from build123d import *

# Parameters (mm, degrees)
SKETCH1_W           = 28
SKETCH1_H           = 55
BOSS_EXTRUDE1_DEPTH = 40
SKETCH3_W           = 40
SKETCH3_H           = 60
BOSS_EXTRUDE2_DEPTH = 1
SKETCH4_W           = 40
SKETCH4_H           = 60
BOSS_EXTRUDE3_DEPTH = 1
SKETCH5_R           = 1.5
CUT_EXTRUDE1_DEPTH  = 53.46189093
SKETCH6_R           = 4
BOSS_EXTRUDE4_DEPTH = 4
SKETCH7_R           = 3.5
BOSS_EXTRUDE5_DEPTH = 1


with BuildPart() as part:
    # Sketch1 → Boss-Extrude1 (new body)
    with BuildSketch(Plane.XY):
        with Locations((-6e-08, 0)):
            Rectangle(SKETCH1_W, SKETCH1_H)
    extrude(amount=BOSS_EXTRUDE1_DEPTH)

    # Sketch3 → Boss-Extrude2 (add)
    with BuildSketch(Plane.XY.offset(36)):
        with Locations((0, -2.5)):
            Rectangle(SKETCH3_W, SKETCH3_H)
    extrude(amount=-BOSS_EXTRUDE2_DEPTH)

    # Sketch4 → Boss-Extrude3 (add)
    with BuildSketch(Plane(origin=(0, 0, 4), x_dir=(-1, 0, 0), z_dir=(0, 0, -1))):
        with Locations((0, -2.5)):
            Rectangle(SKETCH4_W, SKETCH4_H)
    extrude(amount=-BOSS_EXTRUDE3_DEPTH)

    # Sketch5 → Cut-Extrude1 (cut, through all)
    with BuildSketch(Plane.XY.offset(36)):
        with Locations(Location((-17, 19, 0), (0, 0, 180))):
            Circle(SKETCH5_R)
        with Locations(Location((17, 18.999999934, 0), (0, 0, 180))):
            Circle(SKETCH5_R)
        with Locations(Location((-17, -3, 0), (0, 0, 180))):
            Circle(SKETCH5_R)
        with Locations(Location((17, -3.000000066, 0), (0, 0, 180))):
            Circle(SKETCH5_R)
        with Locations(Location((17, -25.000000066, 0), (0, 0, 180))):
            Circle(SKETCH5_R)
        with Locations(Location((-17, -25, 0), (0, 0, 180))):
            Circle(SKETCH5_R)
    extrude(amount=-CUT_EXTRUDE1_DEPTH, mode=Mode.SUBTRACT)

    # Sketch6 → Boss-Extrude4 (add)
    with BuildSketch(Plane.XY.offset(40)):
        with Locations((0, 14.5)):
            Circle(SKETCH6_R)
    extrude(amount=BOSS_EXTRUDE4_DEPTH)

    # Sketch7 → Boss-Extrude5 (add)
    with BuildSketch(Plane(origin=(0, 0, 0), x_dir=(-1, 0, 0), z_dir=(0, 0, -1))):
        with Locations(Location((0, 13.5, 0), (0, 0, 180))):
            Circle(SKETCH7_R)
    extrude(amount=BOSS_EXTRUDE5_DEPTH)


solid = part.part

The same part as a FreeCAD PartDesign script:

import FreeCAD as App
import Part
import Sketcher
from FreeCAD import Vector
Q = App.Units.Quantity

doc = App.newDocument("Part")
body = doc.addObject("PartDesign::Body", "Body")

# Sketch on XY plane
sketch1 = body.newObject("Sketcher::SketchObject", "Sketch")
sketch1.AttachmentSupport = (doc.getObject("XY_Plane"), [""])
sketch1.MapMode = "FlatFace"
sketch1.addGeometry(Part.LineSegment(Vector(-14, 27.5, 0), Vector(-14, -27.5, 0)), False)
sketch1.addGeometry(Part.LineSegment(Vector(-14, -27.5, 0), Vector(14, -27.5, 0)), False)
sketch1.addGeometry(Part.LineSegment(Vector(14, -27.5, 0), Vector(14, 27.5, 0)), False)
sketch1.addGeometry(Part.LineSegment(Vector(14, 27.5, 0), Vector(-14, 27.5, 0)), False)
sketch1.addConstraint(Sketcher.Constraint("Coincident", 0, 2, 1, 1))
sketch1.addConstraint(Sketcher.Constraint("Coincident", 1, 2, 2, 1))
sketch1.addConstraint(Sketcher.Constraint("Coincident", 2, 2, 3, 1))
sketch1.addConstraint(Sketcher.Constraint("Coincident", 3, 2, 0, 1))
sketch1.addConstraint(Sketcher.Constraint("Vertical", 0))
sketch1.addConstraint(Sketcher.Constraint("Horizontal", 1))
sketch1.addConstraint(Sketcher.Constraint("Vertical", 2))
sketch1.addConstraint(Sketcher.Constraint("Horizontal", 3))
sketch1.addConstraint(Sketcher.Constraint("Symmetric", 0, 2, 2, 2, -1, 1))
sketch1.addConstraint(Sketcher.Constraint("DistanceX", 1, 1, 1, 2, Q("28 mm")))
sketch1.addConstraint(Sketcher.Constraint("DistanceY", 0, 2, 0, 1, Q("55 mm")))
pad1 = body.newObject("PartDesign::Pad", "Pad")
pad1.Profile = sketch1
pad1.Length = 40

# Sketch on XY plane
sketch2 = body.newObject("Sketcher::SketchObject", "Sketch001")
sketch2.AttachmentSupport = (doc.getObject("XY_Plane"), [""])
sketch2.MapMode = "FlatFace"
sketch2.AttachmentOffset = App.Placement(Vector(0, 0, 36), App.Rotation())
sketch2.addGeometry(Part.LineSegment(Vector(-20, 27.5, 0), Vector(-20, -32.5, 0)), False)
sketch2.addGeometry(Part.LineSegment(Vector(-20, -32.5, 0), Vector(20, -32.5, 0)), False)
sketch2.addGeometry(Part.LineSegment(Vector(20, -32.5, 0), Vector(20, 27.5, 0)), False)
sketch2.addGeometry(Part.LineSegment(Vector(20, 27.5, 0), Vector(-20, 27.5, 0)), False)
sketch2.addConstraint(Sketcher.Constraint("Coincident", 0, 2, 1, 1))
sketch2.addConstraint(Sketcher.Constraint("Coincident", 1, 2, 2, 1))
sketch2.addConstraint(Sketcher.Constraint("Coincident", 2, 2, 3, 1))
sketch2.addConstraint(Sketcher.Constraint("Coincident", 3, 2, 0, 1))
sketch2.addConstraint(Sketcher.Constraint("Vertical", 0))
sketch2.addConstraint(Sketcher.Constraint("Horizontal", 1))
sketch2.addConstraint(Sketcher.Constraint("Vertical", 2))
sketch2.addConstraint(Sketcher.Constraint("Horizontal", 3))
sketch2.addConstraint(Sketcher.Constraint("DistanceX", 1, 1, 1, 2, Q("40 mm")))
sketch2.addConstraint(Sketcher.Constraint("DistanceY", 0, 2, 0, 1, Q("60 mm")))
sketch2.addConstraint(Sketcher.Constraint("DistanceX", 0, 2, -1, 1, Q("20 mm")))
sketch2.addConstraint(Sketcher.Constraint("DistanceY", 0, 2, -1, 1, Q("32.5 mm")))
pad2 = body.newObject("PartDesign::Pad", "Pad001")
pad2.Profile = sketch2
pad2.Length = 1
pad2.Reversed = True

# Sketch on XY plane
sketch3 = body.newObject("Sketcher::SketchObject", "Sketch002")
sketch3.AttachmentSupport = (doc.getObject("XY_Plane"), [""])
sketch3.MapMode = "FlatFace"
sketch3.AttachmentOffset = App.Placement(Vector(0, 0, 4), App.Rotation())
sketch3.addGeometry(Part.LineSegment(Vector(20, 27.5, 0), Vector(20, -32.5, 0)), False)
sketch3.addGeometry(Part.LineSegment(Vector(20, -32.5, 0), Vector(-20, -32.5, 0)), False)
sketch3.addGeometry(Part.LineSegment(Vector(-20, -32.5, 0), Vector(-20, 27.5, 0)), False)
sketch3.addGeometry(Part.LineSegment(Vector(-20, 27.5, 0), Vector(20, 27.5, 0)), False)
sketch3.addConstraint(Sketcher.Constraint("Coincident", 0, 2, 1, 1))
sketch3.addConstraint(Sketcher.Constraint("Coincident", 1, 2, 2, 1))
sketch3.addConstraint(Sketcher.Constraint("Coincident", 2, 2, 3, 1))
sketch3.addConstraint(Sketcher.Constraint("Coincident", 3, 2, 0, 1))
sketch3.addConstraint(Sketcher.Constraint("Vertical", 0))
sketch3.addConstraint(Sketcher.Constraint("Horizontal", 1))
sketch3.addConstraint(Sketcher.Constraint("Vertical", 2))
sketch3.addConstraint(Sketcher.Constraint("Horizontal", 3))
sketch3.addConstraint(Sketcher.Constraint("DistanceX", 1, 2, 1, 1, Q("40 mm")))
sketch3.addConstraint(Sketcher.Constraint("DistanceY", 0, 2, 0, 1, Q("60 mm")))
sketch3.addConstraint(Sketcher.Constraint("DistanceX", -1, 1, 0, 2, Q("20 mm")))
sketch3.addConstraint(Sketcher.Constraint("DistanceY", 0, 2, -1, 1, Q("32.5 mm")))
pad3 = body.newObject("PartDesign::Pad", "Pad002")
pad3.Profile = sketch3
pad3.Length = 1

# Sketch on XY plane
sketch4 = body.newObject("Sketcher::SketchObject", "Sketch003")
sketch4.AttachmentSupport = (doc.getObject("XY_Plane"), [""])
sketch4.MapMode = "FlatFace"
sketch4.AttachmentOffset = App.Placement(Vector(0, 0, 36), App.Rotation())
sketch4.addGeometry(Part.Circle(Vector(-17, 19, 0), Vector(0, 0, 1), 1.5), False)
sketch4.addGeometry(Part.Circle(Vector(17, 19, 0), Vector(0, 0, 1), 1.5), False)
sketch4.addGeometry(Part.Circle(Vector(-17, -3, 0), Vector(0, 0, 1), 1.5), False)
sketch4.addGeometry(Part.Circle(Vector(17, -3, 0), Vector(0, 0, 1), 1.5), False)
sketch4.addGeometry(Part.Circle(Vector(17, -25, 0), Vector(0, 0, 1), 1.5), False)
sketch4.addGeometry(Part.Circle(Vector(-17, -25, 0), Vector(0, 0, 1), 1.5), False)
sketch4.addConstraint(Sketcher.Constraint("Equal", 0, 1))
sketch4.addConstraint(Sketcher.Constraint("Equal", 1, 2))
sketch4.addConstraint(Sketcher.Constraint("Equal", 2, 3))
sketch4.addConstraint(Sketcher.Constraint("Equal", 3, 4))
sketch4.addConstraint(Sketcher.Constraint("Equal", 4, 5))
sketch4.addConstraint(Sketcher.Constraint("Symmetric", 0, 3, 1, 3, -2))
sketch4.addConstraint(Sketcher.Constraint("Symmetric", 2, 3, 3, 3, -2))
sketch4.addConstraint(Sketcher.Constraint("Symmetric", 4, 3, 5, 3, -2))
sketch4.addConstraint(Sketcher.Constraint("Vertical", 0, 3, 2, 3))
sketch4.addConstraint(Sketcher.Constraint("Vertical", 3, 3, 4, 3))
sketch4.addConstraint(Sketcher.Constraint("Diameter", 0, Q("3 mm")))
sketch4.addConstraint(Sketcher.Constraint("DistanceX", 0, 3, -1, 1, Q("17 mm")))
sketch4.addConstraint(Sketcher.Constraint("DistanceY", -1, 1, 0, 3, Q("19 mm")))
sketch4.addConstraint(Sketcher.Constraint("DistanceY", 2, 3, -1, 1, Q("3 mm")))
sketch4.addConstraint(Sketcher.Constraint("DistanceY", 4, 3, -1, 1, Q("25 mm")))
pocket1 = body.newObject("PartDesign::Pocket", "Pocket")
pocket1.Profile = sketch4
pocket1.Type = "ThroughAll"

# Sketch on XY plane
sketch5 = body.newObject("Sketcher::SketchObject", "Sketch004")
sketch5.AttachmentSupport = (doc.getObject("XY_Plane"), [""])
sketch5.MapMode = "FlatFace"
sketch5.AttachmentOffset = App.Placement(Vector(0, 0, 40), App.Rotation())
sketch5.addGeometry(Part.Circle(Vector(0, 14.5, 0), Vector(0, 0, 1), 4), False)
sketch5.addConstraint(Sketcher.Constraint("PointOnObject", 0, 3, -2))
sketch5.addConstraint(Sketcher.Constraint("Diameter", 0, Q("8 mm")))
sketch5.addConstraint(Sketcher.Constraint("DistanceY", -1, 1, 0, 3, Q("14.5 mm")))
pad4 = body.newObject("PartDesign::Pad", "Pad003")
pad4.Profile = sketch5
pad4.Length = 4

# Sketch on XY plane
sketch6 = body.newObject("Sketcher::SketchObject", "Sketch005")
sketch6.AttachmentSupport = (doc.getObject("XY_Plane"), [""])
sketch6.MapMode = "FlatFace"
sketch6.addGeometry(Part.Circle(Vector(0, 13.5, 0), Vector(0, 0, 1), 3.5), False)
sketch6.addConstraint(Sketcher.Constraint("PointOnObject", 0, 3, -2))
sketch6.addConstraint(Sketcher.Constraint("Diameter", 0, Q("7 mm")))
sketch6.addConstraint(Sketcher.Constraint("DistanceY", -1, 1, 0, 3, Q("13.5 mm")))
pad5 = body.newObject("PartDesign::Pad", "Pad004")
pad5.Profile = sketch6
pad5.Length = 1
pad5.Reversed = True

doc.recompute()
